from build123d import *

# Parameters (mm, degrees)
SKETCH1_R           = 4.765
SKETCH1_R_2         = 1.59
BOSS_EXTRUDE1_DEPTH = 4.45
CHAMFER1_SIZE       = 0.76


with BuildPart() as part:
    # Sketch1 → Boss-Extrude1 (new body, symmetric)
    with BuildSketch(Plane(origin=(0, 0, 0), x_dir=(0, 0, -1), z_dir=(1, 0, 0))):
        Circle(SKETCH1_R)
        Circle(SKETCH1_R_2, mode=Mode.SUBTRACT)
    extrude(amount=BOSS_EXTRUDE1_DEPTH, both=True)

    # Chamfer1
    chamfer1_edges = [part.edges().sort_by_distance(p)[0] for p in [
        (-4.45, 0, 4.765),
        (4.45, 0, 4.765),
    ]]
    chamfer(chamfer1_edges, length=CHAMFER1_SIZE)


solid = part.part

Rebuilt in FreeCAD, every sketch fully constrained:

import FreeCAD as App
import Part
import Sketcher

V = App.Vector
Q = App.Units.Quantity


def edges_at(feature, points):
    """Names of the edges that pass closest to the given points."""
    edges = feature.Shape.Edges
    near = lambda p: min(range(len(edges)), key=lambda i: edges[i].distToShape(Part.Vertex(*p))[0])
    return sorted({f"Edge{near(p) + 1}" for p in points})

doc = App.newDocument("Part")
body = doc.addObject("PartDesign::Body", "Body")

# Sketch on YZ plane
sketch1 = body.newObject("Sketcher::SketchObject", "Sketch")
sketch1.AttachmentSupport = (doc.getObject("YZ_Plane"), [""])
sketch1.MapMode = "FlatFace"
sketch1.addGeometry(Part.Circle(V(0, 0, 0), V(0, 0, 1), 4.8), False)
sketch1.addGeometry(Part.Circle(V(0, 0, 0), V(0, 0, 1), 1.6), False)
sketch1.addConstraint(Sketcher.Constraint("Coincident", 0, 3, -1, 1))
sketch1.addConstraint(Sketcher.Constraint("Coincident", 1, 3, -1, 1))
sketch1.addConstraint(Sketcher.Constraint("Diameter", 0, Q("9.53 mm")))
sketch1.addConstraint(Sketcher.Constraint("Diameter", 1, Q("3.18 mm")))
pad1 = body.newObject("PartDesign::Pad", "Pad")
pad1.Profile = sketch1
pad1.Length = 8.9
pad1.Midplane = True
doc.recompute()

chamfer = body.newObject("PartDesign::Chamfer", "Chamfer")
chamfer.Base = (pad1, edges_at(pad1, [(-4.45, 0, 4.765), (4.45, 0, 4.765)]))
chamfer.Size = 0.76

doc.recompute()
